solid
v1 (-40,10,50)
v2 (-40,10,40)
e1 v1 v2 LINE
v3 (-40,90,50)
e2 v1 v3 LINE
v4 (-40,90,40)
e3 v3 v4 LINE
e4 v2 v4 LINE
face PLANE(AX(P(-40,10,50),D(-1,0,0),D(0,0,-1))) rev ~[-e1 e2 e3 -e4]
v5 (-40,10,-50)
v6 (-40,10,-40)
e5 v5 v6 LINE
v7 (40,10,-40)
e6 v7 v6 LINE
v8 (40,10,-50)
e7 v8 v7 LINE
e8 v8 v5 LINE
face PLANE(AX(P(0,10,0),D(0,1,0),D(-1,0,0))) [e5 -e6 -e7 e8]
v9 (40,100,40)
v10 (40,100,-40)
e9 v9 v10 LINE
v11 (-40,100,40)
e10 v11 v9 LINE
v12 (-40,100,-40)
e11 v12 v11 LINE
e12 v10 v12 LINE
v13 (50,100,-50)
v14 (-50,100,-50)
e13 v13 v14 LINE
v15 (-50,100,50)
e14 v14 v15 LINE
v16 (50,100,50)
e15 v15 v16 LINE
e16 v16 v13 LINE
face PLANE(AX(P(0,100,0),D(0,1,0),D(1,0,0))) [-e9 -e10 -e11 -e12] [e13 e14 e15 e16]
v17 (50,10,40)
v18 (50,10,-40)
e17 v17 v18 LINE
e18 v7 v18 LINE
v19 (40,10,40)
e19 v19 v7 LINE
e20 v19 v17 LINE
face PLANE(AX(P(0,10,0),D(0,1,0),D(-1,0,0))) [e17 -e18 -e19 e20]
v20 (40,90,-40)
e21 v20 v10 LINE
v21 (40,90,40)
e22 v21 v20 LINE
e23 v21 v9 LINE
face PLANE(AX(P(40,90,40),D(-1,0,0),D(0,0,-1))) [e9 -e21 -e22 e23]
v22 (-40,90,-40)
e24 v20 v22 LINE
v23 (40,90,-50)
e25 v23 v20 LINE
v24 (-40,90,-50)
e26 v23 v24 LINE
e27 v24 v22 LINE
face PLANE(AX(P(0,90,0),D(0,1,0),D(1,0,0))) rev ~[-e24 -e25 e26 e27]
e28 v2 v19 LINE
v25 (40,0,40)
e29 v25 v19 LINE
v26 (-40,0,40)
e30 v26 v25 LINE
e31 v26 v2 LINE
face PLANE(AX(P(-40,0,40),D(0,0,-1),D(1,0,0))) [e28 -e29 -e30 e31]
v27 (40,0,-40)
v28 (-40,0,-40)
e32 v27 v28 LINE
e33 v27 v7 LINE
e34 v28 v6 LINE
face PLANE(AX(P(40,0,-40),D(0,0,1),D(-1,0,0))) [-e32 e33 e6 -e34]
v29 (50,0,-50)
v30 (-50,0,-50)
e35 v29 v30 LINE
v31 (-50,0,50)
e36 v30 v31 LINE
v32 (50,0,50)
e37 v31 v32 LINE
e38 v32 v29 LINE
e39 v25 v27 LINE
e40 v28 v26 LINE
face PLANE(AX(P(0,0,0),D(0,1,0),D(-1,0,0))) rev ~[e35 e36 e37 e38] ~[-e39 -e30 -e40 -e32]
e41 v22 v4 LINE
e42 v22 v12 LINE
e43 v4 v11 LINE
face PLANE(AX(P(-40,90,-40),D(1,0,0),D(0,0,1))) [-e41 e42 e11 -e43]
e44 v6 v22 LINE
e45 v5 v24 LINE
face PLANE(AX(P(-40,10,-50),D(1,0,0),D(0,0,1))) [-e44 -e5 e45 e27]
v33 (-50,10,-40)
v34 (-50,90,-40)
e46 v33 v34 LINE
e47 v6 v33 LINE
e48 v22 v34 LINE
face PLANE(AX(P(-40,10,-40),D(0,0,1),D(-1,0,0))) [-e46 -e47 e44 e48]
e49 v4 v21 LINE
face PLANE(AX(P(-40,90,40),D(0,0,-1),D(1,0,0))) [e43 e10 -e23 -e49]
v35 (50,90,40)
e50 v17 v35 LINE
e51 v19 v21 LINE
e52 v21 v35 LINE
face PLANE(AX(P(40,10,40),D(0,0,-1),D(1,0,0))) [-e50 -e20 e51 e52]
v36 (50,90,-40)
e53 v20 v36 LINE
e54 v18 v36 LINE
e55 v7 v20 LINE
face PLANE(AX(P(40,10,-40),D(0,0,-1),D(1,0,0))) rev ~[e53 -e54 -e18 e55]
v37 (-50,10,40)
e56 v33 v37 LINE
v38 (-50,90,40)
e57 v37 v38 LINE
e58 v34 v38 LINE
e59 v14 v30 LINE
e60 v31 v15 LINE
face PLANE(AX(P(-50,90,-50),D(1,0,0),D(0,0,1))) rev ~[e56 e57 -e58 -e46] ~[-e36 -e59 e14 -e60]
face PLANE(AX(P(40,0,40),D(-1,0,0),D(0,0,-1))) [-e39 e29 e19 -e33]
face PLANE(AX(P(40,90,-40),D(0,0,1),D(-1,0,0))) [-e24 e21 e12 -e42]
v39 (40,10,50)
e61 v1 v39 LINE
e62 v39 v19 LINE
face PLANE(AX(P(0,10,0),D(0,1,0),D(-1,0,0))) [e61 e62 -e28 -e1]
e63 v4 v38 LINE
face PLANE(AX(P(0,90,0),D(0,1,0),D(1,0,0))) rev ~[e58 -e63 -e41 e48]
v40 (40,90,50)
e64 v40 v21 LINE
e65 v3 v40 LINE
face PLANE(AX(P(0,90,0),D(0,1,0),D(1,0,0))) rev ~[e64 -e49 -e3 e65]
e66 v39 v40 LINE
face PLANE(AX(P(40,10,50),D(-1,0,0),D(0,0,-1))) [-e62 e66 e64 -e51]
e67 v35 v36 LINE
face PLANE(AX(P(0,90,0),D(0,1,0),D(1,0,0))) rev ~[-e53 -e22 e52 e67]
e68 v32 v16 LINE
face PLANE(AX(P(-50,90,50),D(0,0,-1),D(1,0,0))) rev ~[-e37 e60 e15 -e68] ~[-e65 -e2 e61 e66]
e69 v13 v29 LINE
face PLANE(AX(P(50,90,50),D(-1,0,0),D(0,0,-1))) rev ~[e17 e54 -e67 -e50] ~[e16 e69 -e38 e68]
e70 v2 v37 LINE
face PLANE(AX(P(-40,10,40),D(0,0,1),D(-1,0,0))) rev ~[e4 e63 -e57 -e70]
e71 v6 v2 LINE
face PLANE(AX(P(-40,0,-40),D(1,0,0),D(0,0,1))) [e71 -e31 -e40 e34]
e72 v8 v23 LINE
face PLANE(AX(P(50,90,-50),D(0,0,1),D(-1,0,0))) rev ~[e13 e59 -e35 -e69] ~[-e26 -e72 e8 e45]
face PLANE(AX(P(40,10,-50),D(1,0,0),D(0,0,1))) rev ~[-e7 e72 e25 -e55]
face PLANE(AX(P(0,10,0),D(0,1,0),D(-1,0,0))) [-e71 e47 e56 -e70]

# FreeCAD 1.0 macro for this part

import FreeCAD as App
import Part
import Sketcher
Q = App.Units.Quantity


def add_polygon(sketch, points):
    """Adds a closed chain of lines whose ends are joined by coincident constraints."""
    first, n = sketch.GeometryCount, len(points)
    for a, b in zip(points, points[1:] + points[:1]):
        sketch.addGeometry(Part.LineSegment(App.Vector(*a, 0), App.Vector(*b, 0)), False)
    for i in range(n):
        sketch.addConstraint(Sketcher.Constraint("Coincident", first + i, 2, first + (i + 1) % n, 1))

doc = App.newDocument("Part")
body = doc.addObject("PartDesign::Body", "Body")

# Sketch on XZ plane
sketch1 = doc.addObject("Sketcher::SketchObject", "Sketch")
body.addObject(sketch1)
sketch1.AttachmentSupport = (doc.XZ_Plane, [""])
sketch1.MapMode = "FlatFace"
add_polygon(sketch1, [(-50, -50), (-50, 50), (50, 50), (50, -50)])  # lines 0-3
add_polygon(sketch1, [(40, 40), (-40, 40), (-40, -40), (40, -40)])  # lines 4-7
sketch1.addConstraint([
    Sketcher.Constraint("Vertical", 0),
    Sketcher.Constraint("Horizontal", 1),
    Sketcher.Constraint("Vertical", 2),
    Sketcher.Constraint("Horizontal", 3),
    Sketcher.Constraint("Horizontal", 4),
    Sketcher.Constraint("Vertical", 5),
    Sketcher.Constraint("Horizontal", 6),
    Sketcher.Constraint("Vertical", 7),
    Sketcher.Constraint("Symmetric", 0, 2, 2, 2, -1, 1),
    Sketcher.Constraint("Symmetric", 4, 2, 6, 2, -1, 1),
    Sketcher.Constraint("Equal", 3, 0),
    Sketcher.Constraint("Equal", 6, 5),
    Sketcher.Constraint("DistanceX", 1, 1, 1, 2, Q("3.937 in")),
    Sketcher.Constraint("DistanceX", 4, 2, 4, 1, Q("3.1496 in")),
])
pad1 = doc.addObject("PartDesign::Pad", "Pad")
body.addObject(pad1)
pad1.Profile = sketch1
pad1.Length = Q("0.3937008 in")
pad1.Reversed = True

# Sketch on XZ plane
sketch2 = doc.addObject("Sketcher::SketchObject", "Sketch001")
body.addObject(sketch2)
sketch2.AttachmentSupport = (doc.XZ_Plane, [""])
sketch2.MapMode = "FlatFace"
sketch2.AttachmentOffset = App.Placement(App.Vector(0, 0, -0.3937008 * 25.4), App.Rotation())
add_polygon(sketch2, [(50, 40), (40, 40), (40, 50), (50, 50)])  # lines 0-3
add_polygon(sketch2, [(40, -50), (40, -40), (50, -40), (50, -50)])  # lines 4-7
add_polygon(sketch2, [(-40, 50), (-40, 40), (-50, 40), (-50, 50)])  # lines 8-11
add_polygon(sketch2, [(-50, -40), (-40, -40), (-40, -50), (-50, -50)])  # lines 12-15
sketch2.addConstraint([
    Sketcher.Constraint("Horizontal", 0),
    Sketcher.Constraint("Vertical", 1),
    Sketcher.Constraint("Horizontal", 2),
    Sketcher.Constraint("Vertical", 3),
    Sketcher.Constraint("Vertical", 4),
    Sketcher.Constraint("Horizontal", 5),
    Sketcher.Constraint("Vertical", 6),
    Sketcher.Constraint("Horizontal", 7),
    Sketcher.Constraint("Vertical", 8),
    Sketcher.Constraint("Horizontal", 9),
    Sketcher.Constraint("Vertical", 10),
    Sketcher.Constraint("Horizontal", 11),
    Sketcher.Constraint("Horizontal", 12),
    Sketcher.Constraint("Vertical", 13),
    Sketcher.Constraint("Horizontal", 14),
    Sketcher.Constraint("Vertical", 15),
    Sketcher.Constraint("Symmetric", 4, 2, 8, 2, -1, 1),
    Sketcher.Constraint("Symmetric", 6, 2, 10, 2, -1, 1),
    Sketcher.Constraint("Symmetric", 0, 2, 12, 2, -1, 1),
    Sketcher.Constraint("Symmetric", 2, 2, 14, 2, -1, 1),
    Sketcher.Constraint("Symmetric", 0, 2, 8, 2, -2),
    Sketcher.Constraint("Symmetric", 2, 2, 10, 2, -2),
    Sketcher.Constraint("Equal", 14, 1),
    Sketcher.Constraint("DistanceX", 0, 2, 0, 1, Q("0.3937 in")),
    Sketcher.Constraint("DistanceY", 6, 2, 2, 2, Q("3.937 in")),
    Sketcher.Constraint("DistanceX", 9, 2, 3, 2, Q("3.937 in")),
])
pad2 = doc.addObject("PartDesign::Pad", "Pad001")
body.addObject(pad2)
pad2.Profile = sketch2
pad2.Length = Q("3.1496063 in")
pad2.Reversed = True

# Sketch on XZ plane
sketch3 = doc.addObject("Sketcher::SketchObject", "Sketch002")
body.addObject(sketch3)
sketch3.AttachmentSupport = (doc.XZ_Plane, [""])
sketch3.MapMode = "FlatFace"
sketch3.AttachmentOffset = App.Placement(App.Vector(0, 0, -3.5433071 * 25.4), App.Rotation())
add_polygon(sketch3, [(-50, -50), (-50, 50), (50, 50), (50, -50)])  # lines 0-3
add_polygon(sketch3, [(40, 40), (-40, 40), (-40, -40), (40, -40)])  # lines 4-7
sketch3.addConstraint([
    Sketcher.Constraint("Vertical", 0),
    Sketcher.Constraint("Horizontal", 1),
    Sketcher.Constraint("Vertical", 2),
    Sketcher.Constraint("Horizontal", 3),
    Sketcher.Constraint("Horizontal", 4),
    Sketcher.Constraint("Vertical", 5),
    Sketcher.Constraint("Horizontal", 6),
    Sketcher.Constraint("Vertical", 7),
    Sketcher.Constraint("Symmetric", 0, 2, 2, 2, -1, 1),
    Sketcher.Constraint("Symmetric", 4, 2, 6, 2, -1, 1),
    Sketcher.Constraint("Equal", 3, 0),
    Sketcher.Constraint("Equal", 6, 5),
    Sketcher.Constraint("DistanceX", 1, 1, 1, 2, Q("3.937 in")),
    Sketcher.Constraint("DistanceX", 4, 2, 4, 1, Q("3.1496 in")),
])
pad3 = doc.addObject("PartDesign::Pad", "Pad002")
body.addObject(pad3)
pad3.Profile = sketch3
pad3.Length = Q("0.3937008 in")
pad3.Reversed = True

doc.recompute()
